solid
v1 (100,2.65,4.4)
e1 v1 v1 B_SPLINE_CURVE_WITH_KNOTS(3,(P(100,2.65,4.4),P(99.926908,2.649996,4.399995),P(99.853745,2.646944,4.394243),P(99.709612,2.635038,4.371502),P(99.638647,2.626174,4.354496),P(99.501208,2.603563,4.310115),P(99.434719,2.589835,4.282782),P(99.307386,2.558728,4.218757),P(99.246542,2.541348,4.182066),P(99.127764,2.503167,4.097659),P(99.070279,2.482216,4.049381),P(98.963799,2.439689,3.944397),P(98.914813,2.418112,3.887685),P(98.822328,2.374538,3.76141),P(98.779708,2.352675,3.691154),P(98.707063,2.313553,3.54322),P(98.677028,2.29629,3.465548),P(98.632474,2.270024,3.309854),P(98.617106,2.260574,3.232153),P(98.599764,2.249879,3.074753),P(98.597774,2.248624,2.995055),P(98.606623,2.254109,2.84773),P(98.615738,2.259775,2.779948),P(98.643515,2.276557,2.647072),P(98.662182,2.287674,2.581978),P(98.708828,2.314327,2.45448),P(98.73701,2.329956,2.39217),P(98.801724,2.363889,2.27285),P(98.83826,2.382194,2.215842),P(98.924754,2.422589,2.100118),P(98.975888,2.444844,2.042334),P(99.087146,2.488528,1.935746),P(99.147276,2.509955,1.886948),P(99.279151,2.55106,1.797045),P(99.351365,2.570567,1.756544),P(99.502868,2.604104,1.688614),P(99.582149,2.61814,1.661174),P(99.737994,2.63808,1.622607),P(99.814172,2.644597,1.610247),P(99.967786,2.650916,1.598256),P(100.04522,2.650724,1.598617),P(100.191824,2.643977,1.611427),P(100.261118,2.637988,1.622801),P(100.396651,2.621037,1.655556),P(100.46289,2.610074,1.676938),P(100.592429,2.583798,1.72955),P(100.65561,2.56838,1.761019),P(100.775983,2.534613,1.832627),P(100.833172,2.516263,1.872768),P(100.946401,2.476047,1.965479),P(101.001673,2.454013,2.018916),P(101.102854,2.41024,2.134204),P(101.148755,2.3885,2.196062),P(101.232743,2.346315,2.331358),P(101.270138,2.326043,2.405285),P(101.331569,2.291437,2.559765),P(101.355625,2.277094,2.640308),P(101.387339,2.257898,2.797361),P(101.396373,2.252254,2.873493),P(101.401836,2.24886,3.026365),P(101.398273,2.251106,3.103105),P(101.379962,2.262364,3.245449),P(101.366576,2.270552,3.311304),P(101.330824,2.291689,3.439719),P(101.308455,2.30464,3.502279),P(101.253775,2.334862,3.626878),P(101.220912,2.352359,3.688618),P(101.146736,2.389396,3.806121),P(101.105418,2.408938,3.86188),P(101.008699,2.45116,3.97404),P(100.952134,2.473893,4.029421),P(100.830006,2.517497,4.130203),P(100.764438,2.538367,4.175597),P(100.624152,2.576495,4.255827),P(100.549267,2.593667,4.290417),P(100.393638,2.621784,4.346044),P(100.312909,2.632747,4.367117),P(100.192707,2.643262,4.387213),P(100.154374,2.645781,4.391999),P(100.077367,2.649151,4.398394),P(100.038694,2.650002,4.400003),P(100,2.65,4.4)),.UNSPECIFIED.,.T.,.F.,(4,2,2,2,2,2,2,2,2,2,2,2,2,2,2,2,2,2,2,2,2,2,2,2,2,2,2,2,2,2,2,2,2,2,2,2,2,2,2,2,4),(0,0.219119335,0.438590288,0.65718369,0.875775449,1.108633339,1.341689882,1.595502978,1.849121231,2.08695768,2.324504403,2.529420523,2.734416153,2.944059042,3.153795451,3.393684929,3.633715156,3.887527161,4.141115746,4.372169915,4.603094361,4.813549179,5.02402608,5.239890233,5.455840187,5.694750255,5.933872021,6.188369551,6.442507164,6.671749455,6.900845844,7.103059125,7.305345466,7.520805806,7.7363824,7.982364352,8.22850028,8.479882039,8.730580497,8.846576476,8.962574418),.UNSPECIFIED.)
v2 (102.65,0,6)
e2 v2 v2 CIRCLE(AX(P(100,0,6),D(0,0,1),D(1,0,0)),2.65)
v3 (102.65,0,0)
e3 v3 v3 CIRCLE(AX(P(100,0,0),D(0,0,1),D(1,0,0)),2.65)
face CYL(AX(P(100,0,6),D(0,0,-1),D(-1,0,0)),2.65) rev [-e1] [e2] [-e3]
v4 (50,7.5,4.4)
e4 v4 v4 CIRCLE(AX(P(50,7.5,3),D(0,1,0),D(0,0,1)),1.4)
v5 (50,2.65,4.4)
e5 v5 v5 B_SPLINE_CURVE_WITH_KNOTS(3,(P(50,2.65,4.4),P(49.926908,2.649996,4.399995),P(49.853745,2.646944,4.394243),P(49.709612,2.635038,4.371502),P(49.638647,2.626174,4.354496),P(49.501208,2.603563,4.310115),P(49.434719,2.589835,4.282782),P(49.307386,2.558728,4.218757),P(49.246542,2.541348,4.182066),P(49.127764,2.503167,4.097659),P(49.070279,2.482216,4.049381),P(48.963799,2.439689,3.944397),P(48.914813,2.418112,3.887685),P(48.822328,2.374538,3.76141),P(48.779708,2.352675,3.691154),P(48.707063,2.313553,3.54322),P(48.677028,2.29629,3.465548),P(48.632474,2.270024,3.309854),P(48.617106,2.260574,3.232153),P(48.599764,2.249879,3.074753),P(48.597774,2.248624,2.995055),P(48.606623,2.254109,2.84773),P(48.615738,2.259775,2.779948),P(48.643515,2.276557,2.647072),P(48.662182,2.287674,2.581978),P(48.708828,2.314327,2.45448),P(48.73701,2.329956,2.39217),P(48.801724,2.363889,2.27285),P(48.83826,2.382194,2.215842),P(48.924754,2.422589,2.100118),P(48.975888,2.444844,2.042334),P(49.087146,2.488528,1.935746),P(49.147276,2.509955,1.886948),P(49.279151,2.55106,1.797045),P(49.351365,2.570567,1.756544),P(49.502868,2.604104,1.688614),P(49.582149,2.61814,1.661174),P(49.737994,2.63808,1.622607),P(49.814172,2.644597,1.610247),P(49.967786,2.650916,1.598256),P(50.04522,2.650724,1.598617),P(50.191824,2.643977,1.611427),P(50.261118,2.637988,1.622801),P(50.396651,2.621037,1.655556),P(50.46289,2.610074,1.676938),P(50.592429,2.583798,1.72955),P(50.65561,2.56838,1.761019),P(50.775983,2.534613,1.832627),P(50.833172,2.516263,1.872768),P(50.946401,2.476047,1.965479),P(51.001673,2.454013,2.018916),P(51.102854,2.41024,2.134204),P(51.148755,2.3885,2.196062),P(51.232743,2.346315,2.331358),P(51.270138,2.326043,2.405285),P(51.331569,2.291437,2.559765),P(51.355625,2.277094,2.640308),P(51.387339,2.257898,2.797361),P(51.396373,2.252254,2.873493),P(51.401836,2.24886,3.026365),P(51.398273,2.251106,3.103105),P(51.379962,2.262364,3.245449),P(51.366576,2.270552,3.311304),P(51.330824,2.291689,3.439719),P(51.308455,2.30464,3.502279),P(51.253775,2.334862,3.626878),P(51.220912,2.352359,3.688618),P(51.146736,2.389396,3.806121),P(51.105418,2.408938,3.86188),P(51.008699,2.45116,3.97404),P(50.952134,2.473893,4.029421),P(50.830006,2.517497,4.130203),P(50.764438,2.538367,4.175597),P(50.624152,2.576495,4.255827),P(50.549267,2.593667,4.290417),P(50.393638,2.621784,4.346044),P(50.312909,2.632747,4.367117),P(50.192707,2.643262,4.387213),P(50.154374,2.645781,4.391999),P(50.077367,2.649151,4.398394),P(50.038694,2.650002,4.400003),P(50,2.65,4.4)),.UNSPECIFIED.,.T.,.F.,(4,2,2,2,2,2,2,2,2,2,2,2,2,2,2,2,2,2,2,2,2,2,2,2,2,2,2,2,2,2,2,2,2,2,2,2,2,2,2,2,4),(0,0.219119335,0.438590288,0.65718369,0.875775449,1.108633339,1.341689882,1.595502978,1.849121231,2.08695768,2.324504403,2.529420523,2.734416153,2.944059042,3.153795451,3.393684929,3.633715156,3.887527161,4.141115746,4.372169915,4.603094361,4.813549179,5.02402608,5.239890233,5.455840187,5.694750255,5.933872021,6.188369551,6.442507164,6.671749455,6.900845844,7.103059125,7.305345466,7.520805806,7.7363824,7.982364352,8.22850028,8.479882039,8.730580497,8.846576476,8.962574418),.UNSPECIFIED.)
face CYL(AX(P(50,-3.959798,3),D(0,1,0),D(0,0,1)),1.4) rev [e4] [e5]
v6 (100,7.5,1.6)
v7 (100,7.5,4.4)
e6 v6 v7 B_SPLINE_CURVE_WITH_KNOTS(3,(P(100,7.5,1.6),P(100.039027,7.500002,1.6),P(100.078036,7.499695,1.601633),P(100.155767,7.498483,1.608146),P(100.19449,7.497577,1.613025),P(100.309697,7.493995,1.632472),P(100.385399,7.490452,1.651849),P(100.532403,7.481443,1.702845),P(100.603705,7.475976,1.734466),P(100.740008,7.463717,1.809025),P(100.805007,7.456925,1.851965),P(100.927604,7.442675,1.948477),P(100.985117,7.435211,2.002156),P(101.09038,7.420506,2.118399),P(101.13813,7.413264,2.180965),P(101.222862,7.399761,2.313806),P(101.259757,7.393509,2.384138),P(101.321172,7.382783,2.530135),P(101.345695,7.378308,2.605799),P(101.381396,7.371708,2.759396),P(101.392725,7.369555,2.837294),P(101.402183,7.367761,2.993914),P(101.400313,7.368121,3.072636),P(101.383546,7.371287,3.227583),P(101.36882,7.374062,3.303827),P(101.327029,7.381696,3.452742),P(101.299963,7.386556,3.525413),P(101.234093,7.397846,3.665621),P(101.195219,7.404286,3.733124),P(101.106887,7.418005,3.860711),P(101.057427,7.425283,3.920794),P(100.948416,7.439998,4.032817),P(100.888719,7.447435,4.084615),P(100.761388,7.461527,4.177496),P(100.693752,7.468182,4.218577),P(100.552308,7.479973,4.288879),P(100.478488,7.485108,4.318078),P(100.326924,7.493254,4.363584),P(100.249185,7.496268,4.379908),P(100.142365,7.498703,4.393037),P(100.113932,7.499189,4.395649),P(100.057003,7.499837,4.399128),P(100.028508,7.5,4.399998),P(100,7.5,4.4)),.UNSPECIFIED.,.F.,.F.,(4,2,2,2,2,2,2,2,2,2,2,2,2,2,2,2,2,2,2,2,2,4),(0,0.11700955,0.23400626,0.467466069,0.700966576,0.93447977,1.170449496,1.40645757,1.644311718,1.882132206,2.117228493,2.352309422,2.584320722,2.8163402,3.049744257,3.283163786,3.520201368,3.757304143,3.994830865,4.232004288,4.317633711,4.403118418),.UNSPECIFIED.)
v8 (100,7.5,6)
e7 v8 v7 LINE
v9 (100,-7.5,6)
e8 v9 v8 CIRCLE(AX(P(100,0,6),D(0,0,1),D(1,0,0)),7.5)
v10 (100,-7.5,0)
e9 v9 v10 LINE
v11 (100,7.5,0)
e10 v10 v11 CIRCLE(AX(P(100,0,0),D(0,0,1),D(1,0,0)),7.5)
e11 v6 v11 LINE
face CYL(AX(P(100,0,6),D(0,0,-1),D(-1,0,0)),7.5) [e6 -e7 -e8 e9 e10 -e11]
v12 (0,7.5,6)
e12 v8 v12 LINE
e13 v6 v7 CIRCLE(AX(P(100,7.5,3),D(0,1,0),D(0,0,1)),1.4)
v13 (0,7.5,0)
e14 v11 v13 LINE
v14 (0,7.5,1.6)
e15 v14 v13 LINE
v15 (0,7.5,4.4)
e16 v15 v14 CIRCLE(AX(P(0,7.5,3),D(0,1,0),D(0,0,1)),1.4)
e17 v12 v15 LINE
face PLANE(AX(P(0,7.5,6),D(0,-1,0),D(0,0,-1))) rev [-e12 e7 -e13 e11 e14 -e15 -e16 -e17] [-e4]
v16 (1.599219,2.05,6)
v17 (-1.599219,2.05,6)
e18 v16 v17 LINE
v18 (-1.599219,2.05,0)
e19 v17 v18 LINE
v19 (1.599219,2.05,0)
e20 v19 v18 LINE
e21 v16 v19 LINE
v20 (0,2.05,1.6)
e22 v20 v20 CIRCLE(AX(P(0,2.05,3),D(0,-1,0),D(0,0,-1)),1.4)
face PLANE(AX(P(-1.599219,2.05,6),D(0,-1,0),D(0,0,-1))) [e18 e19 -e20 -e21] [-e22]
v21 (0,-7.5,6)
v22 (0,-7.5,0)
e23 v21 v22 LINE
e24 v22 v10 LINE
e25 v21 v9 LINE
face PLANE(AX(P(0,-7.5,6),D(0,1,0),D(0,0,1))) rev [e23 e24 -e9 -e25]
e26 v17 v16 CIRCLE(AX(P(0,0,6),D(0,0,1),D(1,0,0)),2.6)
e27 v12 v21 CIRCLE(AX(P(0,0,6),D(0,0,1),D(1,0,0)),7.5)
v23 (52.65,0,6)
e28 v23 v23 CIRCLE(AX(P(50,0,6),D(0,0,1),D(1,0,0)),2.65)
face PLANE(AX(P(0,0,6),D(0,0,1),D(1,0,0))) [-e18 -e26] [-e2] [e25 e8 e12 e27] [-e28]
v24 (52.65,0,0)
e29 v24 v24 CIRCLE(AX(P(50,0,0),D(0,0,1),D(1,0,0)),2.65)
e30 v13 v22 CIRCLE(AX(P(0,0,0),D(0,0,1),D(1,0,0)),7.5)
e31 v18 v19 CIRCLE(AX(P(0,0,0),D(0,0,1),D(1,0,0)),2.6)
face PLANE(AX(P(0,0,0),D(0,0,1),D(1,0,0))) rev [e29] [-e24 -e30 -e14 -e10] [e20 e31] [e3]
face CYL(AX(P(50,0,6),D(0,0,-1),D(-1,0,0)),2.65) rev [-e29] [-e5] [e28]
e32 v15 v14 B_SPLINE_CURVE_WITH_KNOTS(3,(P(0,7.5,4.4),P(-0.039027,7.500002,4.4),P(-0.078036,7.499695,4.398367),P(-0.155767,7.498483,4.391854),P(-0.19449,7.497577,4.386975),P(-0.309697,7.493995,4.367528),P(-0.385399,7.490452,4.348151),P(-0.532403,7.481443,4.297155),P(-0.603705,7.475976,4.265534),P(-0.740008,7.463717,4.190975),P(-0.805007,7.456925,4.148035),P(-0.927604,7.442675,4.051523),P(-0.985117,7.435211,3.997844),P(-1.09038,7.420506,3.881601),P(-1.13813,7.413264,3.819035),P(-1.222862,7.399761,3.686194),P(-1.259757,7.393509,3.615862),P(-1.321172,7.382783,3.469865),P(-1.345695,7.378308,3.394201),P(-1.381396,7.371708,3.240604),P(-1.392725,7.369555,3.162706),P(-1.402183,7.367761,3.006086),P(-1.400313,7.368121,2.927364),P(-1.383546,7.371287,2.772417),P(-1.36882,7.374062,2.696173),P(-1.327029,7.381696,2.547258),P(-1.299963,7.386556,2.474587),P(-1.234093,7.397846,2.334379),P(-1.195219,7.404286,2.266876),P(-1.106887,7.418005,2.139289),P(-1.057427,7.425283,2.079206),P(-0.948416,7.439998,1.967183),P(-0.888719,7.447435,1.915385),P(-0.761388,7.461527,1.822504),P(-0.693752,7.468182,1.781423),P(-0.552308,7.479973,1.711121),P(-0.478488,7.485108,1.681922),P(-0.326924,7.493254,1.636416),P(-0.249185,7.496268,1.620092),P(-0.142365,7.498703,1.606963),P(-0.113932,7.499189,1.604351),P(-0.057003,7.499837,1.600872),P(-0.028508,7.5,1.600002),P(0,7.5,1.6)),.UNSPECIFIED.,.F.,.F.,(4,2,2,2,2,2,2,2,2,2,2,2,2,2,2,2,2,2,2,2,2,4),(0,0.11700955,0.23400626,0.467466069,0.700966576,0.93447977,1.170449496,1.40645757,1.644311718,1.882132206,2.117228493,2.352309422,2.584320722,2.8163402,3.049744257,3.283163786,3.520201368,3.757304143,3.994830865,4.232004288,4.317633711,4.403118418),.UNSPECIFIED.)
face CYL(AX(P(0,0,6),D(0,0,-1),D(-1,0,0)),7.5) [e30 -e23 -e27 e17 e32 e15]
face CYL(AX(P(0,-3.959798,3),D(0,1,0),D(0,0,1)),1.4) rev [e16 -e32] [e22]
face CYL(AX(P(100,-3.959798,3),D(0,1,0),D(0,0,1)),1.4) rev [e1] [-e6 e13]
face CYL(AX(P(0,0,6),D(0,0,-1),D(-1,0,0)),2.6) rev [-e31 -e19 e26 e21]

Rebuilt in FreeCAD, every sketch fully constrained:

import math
import FreeCAD as App
import Part
import Sketcher

V = App.Vector
Q = App.Units.Quantity

doc = App.newDocument("Part")
body = doc.addObject("PartDesign::Body", "Body")

sketch1 = body.newObject("Sketcher::SketchObject", "Sketch")
sketch1.AttachmentSupport = (doc.getObject("XY_Plane"), [""])
sketch1.MapMode = "FlatFace"
sketch1.addGeometry(Part.LineSegment(V(100, 7.5, 0), V(0, 7.5, 0)), False)
sketch1.addGeometry(Part.ArcOfCircle(Part.Circle(V(0, 0, 0), V(0, 0, 1), 7.5), math.radians(90), math.radians(270)), False)
sketch1.addGeometry(Part.LineSegment(V(0, -7.5, 0), V(100, -7.5, 0)), False)
sketch1.addGeometry(Part.ArcOfCircle(Part.Circle(V(100, 0, 0), V(0, 0, 1), 7.5), math.radians(-90), math.radians(90)), False)
sketch1.addGeometry(Part.LineSegment(V(-1.6, 2, 0), V(1.6, 2, 0)), False)
sketch1.addGeometry(Part.ArcOfCircle(Part.Circle(V(0, 0, 0), V(0, 0, 1), 2.6), math.radians(128), math.radians(412)), False)
sketch1.addGeometry(Part.Circle(V(100, 0, 0), V(0, 0, 1), 2.6), False)
sketch1.addGeometry(Part.Circle(V(50, 0, 0), V(0, 0, 1), 2.6), False)
sketch1.addConstraint(Sketcher.Constraint("Tangent", 0, 2, 1, 1))
sketch1.addConstraint(Sketcher.Constraint("Tangent", 1, 2, 2, 1))
sketch1.addConstraint(Sketcher.Constraint("Tangent", 2, 2, 3, 1))
sketch1.addConstraint(Sketcher.Constraint("Tangent", 3, 2, 0, 1))
sketch1.addConstraint(Sketcher.Constraint("Coincident", 4, 1, 5, 1))
sketch1.addConstraint(Sketcher.Constraint("Coincident", 5, 2, 4, 2))
sketch1.addConstraint(Sketcher.Constraint("Horizontal", 0))
sketch1.addConstraint(Sketcher.Constraint("Horizontal", 2))
sketch1.addConstraint(Sketcher.Constraint("Horizontal", 4))
sketch1.addConstraint(Sketcher.Constraint("Coincident", 1, 3, -1, 1))
sketch1.addConstraint(Sketcher.Constraint("Coincident", 5, 3, -1, 1))
sketch1.addConstraint(Sketcher.Constraint("Coincident", 6, 3, 3, 3))
sketch1.addConstraint(Sketcher.Constraint("Equal", 6, 7))
sketch1.addConstraint(Sketcher.Constraint("PointOnObject", 7, 3, -1))
sketch1.addConstraint(Sketcher.Constraint("Diameter", 6, Q("5.3 mm")))
sketch1.addConstraint(Sketcher.Constraint("Radius", 1, Q("7.5 mm")))
sketch1.addConstraint(Sketcher.Constraint("Radius", 5, Q("2.6 mm")))
sketch1.addConstraint(Sketcher.Constraint("DistanceX", 0, 2, 0, 1, Q("100 mm")))
sketch1.addConstraint(Sketcher.Constraint("DistanceX", -1, 1, 7, 3, Q("50 mm")))
sketch1.addConstraint(Sketcher.Constraint("DistanceY", -1, 1, 4, 1, Q("2.05 mm")))
pad1 = body.newObject("PartDesign::Pad", "Pad")
pad1.Profile = sketch1
pad1.Length = 6

sketch2 = body.newObject("Sketcher::SketchObject", "Sketch001")
sketch2.AttachmentSupport = (doc.getObject("XZ_Plane"), [""])
sketch2.MapMode = "FlatFace"
sketch2.AttachmentOffset = App.Placement(V(0, 0, -7.5), App.Rotation())
sketch2.addGeometry(Part.Circle(V(0, 3, 0), V(0, 0, 1), 1.4), False)
sketch2.addConstraint(Sketcher.Constraint("PointOnObject", 0, 3, -2))
sketch2.addConstraint(Sketcher.Constraint("Diameter", 0, Q("2.8 mm")))
sketch2.addConstraint(Sketcher.Constraint("DistanceY", -1, 1, 0, 3, Q("3 mm")))
pocket1 = body.newObject("PartDesign::Pocket", "Pocket")
pocket1.Profile = sketch2
pocket1.Type = "UpToFirst"
pocket1.Reversed = True

sketch3 = body.newObject("Sketcher::SketchObject", "Sketch002")
sketch3.AttachmentSupport = (doc.getObject("XZ_Plane"), [""])
sketch3.MapMode = "FlatFace"
sketch3.AttachmentOffset = App.Placement(V(0, 0, -7.5), App.Rotation())
sketch3.addGeometry(Part.Circle(V(50, 3, 0), V(0, 0, 1), 1.4), False)
sketch3.addConstraint(Sketcher.Constraint("Diameter", 0, Q("2.8 mm")))
sketch3.addConstraint(Sketcher.Constraint("DistanceX", -1, 1, 0, 3, Q("50 mm")))
sketch3.addConstraint(Sketcher.Constraint("DistanceY", -1, 1, 0, 3, Q("3 mm")))
pocket2 = body.newObject("PartDesign::Pocket", "Pocket001")
pocket2.Profile = sketch3
pocket2.Type = "UpToFirst"
pocket2.Reversed = True

sketch4 = body.newObject("Sketcher::SketchObject", "Sketch003")
sketch4.AttachmentSupport = (doc.getObject("XZ_Plane"), [""])
sketch4.MapMode = "FlatFace"
sketch4.AttachmentOffset = App.Placement(V(0, 0, -7.5), App.Rotation())
sketch4.addGeometry(Part.Circle(V(100, 3, 0), V(0, 0, 1), 1.4), False)
sketch4.addConstraint(Sketcher.Constraint("Diameter", 0, Q("2.8 mm")))
sketch4.addConstraint(Sketcher.Constraint("DistanceX", -1, 1, 0, 3, Q("100 mm")))
sketch4.addConstraint(Sketcher.Constraint("DistanceY", -1, 1, 0, 3, Q("3 mm")))
pocket3 = body.newObject("PartDesign::Pocket", "Pocket002")
pocket3.Profile = sketch4
pocket3.Type = "UpToFirst"
pocket3.Reversed = True

doc.recompute()
